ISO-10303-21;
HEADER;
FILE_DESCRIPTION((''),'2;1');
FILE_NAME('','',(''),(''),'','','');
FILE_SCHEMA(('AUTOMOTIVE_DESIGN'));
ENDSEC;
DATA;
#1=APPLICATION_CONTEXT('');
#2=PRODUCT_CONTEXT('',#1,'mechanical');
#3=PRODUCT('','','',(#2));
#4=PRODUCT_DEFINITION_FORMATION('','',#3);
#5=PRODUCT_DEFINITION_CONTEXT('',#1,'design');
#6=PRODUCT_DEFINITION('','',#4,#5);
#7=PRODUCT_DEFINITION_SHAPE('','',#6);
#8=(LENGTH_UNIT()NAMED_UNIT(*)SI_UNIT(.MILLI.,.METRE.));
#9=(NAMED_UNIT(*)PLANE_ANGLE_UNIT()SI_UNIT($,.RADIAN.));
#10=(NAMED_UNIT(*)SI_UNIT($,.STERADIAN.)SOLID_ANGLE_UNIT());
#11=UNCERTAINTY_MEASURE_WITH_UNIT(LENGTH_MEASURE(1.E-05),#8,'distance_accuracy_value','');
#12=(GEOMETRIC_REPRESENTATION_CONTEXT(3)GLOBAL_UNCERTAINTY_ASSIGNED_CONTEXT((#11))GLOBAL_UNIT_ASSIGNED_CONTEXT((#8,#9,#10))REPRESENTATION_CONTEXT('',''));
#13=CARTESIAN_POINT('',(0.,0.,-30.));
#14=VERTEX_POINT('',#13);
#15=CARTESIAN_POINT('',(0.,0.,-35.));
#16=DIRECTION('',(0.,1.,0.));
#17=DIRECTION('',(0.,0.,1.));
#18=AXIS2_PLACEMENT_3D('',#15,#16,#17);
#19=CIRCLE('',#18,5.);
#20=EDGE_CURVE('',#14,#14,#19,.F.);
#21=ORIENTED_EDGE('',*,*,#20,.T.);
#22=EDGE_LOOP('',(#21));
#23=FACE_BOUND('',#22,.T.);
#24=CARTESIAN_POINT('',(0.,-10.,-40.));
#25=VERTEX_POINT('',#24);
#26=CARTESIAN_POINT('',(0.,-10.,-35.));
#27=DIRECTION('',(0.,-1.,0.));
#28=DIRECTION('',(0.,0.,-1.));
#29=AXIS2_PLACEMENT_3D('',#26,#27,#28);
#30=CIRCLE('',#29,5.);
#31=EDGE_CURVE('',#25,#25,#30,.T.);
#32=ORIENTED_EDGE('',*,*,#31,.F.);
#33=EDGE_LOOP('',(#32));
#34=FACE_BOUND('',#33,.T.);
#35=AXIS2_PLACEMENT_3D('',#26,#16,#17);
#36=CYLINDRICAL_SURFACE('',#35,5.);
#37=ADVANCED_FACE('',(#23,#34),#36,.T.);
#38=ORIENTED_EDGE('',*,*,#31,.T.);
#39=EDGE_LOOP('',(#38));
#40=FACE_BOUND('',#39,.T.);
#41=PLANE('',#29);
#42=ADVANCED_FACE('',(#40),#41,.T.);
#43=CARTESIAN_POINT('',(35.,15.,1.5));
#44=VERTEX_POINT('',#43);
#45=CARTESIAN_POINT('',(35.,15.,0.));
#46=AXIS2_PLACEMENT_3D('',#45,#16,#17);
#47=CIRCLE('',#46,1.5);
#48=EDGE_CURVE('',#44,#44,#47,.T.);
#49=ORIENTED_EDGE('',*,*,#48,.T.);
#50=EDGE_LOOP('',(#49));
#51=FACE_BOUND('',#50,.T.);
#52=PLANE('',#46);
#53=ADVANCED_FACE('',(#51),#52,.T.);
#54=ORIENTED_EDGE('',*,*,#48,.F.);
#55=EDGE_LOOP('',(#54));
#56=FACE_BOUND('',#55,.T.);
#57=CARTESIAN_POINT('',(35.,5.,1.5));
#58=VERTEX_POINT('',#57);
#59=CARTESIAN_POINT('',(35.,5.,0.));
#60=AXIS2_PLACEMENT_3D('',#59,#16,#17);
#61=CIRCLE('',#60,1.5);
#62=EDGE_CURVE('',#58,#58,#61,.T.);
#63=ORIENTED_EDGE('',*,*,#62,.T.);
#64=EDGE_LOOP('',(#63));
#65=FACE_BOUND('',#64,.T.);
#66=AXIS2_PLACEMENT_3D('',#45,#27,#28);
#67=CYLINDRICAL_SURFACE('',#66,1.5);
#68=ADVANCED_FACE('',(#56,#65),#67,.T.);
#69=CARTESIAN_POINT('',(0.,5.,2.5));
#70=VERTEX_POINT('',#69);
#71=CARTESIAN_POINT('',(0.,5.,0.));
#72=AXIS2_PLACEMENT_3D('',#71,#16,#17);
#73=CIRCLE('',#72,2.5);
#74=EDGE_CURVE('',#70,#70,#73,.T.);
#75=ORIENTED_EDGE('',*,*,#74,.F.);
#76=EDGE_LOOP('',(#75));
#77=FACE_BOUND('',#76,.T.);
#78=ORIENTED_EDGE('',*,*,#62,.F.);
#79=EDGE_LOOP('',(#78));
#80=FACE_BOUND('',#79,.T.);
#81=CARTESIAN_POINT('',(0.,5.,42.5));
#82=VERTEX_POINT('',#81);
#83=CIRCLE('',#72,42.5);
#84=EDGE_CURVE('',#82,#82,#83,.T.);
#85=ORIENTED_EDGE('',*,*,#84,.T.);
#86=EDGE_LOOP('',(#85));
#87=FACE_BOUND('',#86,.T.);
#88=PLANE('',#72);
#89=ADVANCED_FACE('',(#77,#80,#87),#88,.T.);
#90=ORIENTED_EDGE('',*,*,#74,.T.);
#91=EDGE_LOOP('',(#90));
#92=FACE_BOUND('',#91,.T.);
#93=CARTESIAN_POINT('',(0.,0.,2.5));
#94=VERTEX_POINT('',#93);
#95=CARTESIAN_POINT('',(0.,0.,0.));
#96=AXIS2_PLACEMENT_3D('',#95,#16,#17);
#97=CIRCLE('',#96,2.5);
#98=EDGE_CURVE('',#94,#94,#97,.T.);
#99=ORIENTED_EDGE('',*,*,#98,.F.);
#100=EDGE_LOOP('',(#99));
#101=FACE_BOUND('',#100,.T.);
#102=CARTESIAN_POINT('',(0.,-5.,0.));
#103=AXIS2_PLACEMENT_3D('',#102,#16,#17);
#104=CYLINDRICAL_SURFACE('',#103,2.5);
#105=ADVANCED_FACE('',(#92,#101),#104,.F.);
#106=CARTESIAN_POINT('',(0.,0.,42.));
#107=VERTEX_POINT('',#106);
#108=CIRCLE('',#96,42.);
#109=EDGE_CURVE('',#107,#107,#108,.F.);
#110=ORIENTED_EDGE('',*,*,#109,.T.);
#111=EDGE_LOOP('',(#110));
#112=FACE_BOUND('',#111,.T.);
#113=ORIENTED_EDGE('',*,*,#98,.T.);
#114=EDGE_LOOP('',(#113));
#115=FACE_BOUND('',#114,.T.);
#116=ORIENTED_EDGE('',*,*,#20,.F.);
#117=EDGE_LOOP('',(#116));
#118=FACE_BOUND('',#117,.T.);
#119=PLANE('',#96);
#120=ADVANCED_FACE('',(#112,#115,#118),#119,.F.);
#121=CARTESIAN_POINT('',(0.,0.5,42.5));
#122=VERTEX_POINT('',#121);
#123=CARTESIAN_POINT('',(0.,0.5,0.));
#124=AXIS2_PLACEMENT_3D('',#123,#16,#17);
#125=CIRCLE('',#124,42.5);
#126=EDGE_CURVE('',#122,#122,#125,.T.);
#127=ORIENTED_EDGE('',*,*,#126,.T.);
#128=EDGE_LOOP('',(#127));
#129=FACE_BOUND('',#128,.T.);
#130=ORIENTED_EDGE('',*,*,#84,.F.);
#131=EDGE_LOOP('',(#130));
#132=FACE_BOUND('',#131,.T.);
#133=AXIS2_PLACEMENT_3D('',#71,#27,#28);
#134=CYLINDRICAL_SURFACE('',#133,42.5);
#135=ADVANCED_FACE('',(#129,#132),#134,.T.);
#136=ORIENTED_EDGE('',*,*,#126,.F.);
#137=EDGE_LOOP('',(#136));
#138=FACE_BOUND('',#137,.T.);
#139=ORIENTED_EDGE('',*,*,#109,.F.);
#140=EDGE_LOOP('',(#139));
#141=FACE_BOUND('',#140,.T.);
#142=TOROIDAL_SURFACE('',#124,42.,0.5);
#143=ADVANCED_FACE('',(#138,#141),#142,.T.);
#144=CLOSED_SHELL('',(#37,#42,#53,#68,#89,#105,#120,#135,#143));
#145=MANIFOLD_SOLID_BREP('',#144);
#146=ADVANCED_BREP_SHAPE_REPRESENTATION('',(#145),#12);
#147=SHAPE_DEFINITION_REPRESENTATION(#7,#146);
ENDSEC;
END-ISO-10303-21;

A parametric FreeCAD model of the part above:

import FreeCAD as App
import Part
import Sketcher

V = App.Vector
Q = App.Units.Quantity


def edges_at(feature, points):
    """Names of the edges that pass closest to the given points."""
    edges = feature.Shape.Edges
    near = lambda p: min(range(len(edges)), key=lambda i: edges[i].distToShape(Part.Vertex(*p))[0])
    return sorted({f"Edge{near(p) + 1}" for p in points})

doc = App.newDocument("Part")
body = doc.addObject("PartDesign::Body", "Body")

# Sketch on XZ plane
sketch1 = body.newObject("Sketcher::SketchObject", "Sketch")
sketch1.AttachmentSupport = (doc.getObject("XZ_Plane"), [""])
sketch1.MapMode = "FlatFace"
sketch1.addGeometry(Part.Circle(V(0, 0, 0), V(0, 0, 1), 42), False)
sketch1.addConstraint([
    Sketcher.Constraint("Coincident", 0, 3, -1, 1),
    Sketcher.Constraint("Diameter", 0, Q("85 mm")),
])
pad1 = body.newObject("PartDesign::Pad", "Pad")
pad1.Profile = sketch1
pad1.Length = 5
pad1.Reversed = True

# Sketch on XZ plane
sketch2 = body.newObject("Sketcher::SketchObject", "Sketch001")
sketch2.AttachmentSupport = (doc.getObject("XZ_Plane"), [""])
sketch2.MapMode = "FlatFace"
sketch2.AttachmentOffset = App.Placement(V(0, 0, -5), App.Rotation())
sketch2.addGeometry(Part.Circle(V(35, 0, 0), V(0, 0, 1), 1.5), False)
sketch2.addConstraint([
    Sketcher.Constraint("PointOnObject", 0, 3, -1),
    Sketcher.Constraint("Diameter", 0, Q("3 mm")),
    Sketcher.Constraint("DistanceX", -1, 1, 0, 3, Q("35 mm")),
])
pad2 = body.newObject("PartDesign::Pad", "Pad001")
pad2.Profile = sketch2
pad2.Length = 10
pad2.Reversed = True

# Sketch on XZ plane
sketch3 = body.newObject("Sketcher::SketchObject", "Sketch002")
sketch3.AttachmentSupport = (doc.getObject("XZ_Plane"), [""])
sketch3.MapMode = "FlatFace"
sketch3.AttachmentOffset = App.Placement(V(0, 0, -5), App.Rotation())
sketch3.addGeometry(Part.Circle(V(0, 0, 0), V(0, 0, 1), 2.5), False)
sketch3.addConstraint([
    Sketcher.Constraint("Coincident", 0, 3, -1, 1),
    Sketcher.Constraint("Diameter", 0, Q("5 mm")),
])
pocket1 = body.newObject("PartDesign::Pocket", "Pocket")
pocket1.Profile = sketch3
pocket1.Length = 10
pocket1.Reversed = True

# Sketch on XZ plane
sketch4 = body.newObject("Sketcher::SketchObject", "Sketch003")
sketch4.AttachmentSupport = (doc.getObject("XZ_Plane"), [""])
sketch4.MapMode = "FlatFace"
sketch4.addGeometry(Part.Circle(V(0, -35, 0), V(0, 0, 1), 5), False)
sketch4.addConstraint([
    Sketcher.Constraint("PointOnObject", 0, 3, -2),
    Sketcher.Constraint("Diameter", 0, Q("10 mm")),
    Sketcher.Constraint("DistanceY", 0, 3, -1, 1, Q("35 mm")),
])
pad3 = body.newObject("PartDesign::Pad", "Pad002")
pad3.Profile = sketch4
pad3.Length = 10
doc.recompute()

fillet = body.newObject("PartDesign::Fillet", "Fillet")
fillet.Base = (pad3, edges_at(pad3, [(-42.5, 0, 0)]))
fillet.Radius = 0.5

doc.recompute()
